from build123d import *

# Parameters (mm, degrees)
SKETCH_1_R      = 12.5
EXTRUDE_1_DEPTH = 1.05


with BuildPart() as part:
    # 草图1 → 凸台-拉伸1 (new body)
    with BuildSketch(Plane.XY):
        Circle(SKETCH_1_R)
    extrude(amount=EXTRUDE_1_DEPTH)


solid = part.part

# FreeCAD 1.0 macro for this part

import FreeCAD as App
import Part
import Sketcher
Q = App.Units.Quantity

doc = App.newDocument("Part")
body = doc.addObject("PartDesign::Body", "Body")

sketch1 = body.newObject("Sketcher::SketchObject", "Sketch")
sketch1.AttachmentSupport = (doc.getObject("XY_Plane"), [""])
sketch1.MapMode = "FlatFace"
sketch1.addGeometry(Part.Circle(App.Vector(0, 0, 0), App.Vector(0, 0, 1), 12), False)
sketch1.addConstraint(Sketcher.Constraint("Coincident", 0, 3, -1, 1))
sketch1.addConstraint(Sketcher.Constraint("Diameter", 0, Q("25 mm")))
pad1 = body.newObject("PartDesign::Pad", "Pad")
pad1.Profile = sketch1
pad1.Length = 1.05

doc.recompute()
